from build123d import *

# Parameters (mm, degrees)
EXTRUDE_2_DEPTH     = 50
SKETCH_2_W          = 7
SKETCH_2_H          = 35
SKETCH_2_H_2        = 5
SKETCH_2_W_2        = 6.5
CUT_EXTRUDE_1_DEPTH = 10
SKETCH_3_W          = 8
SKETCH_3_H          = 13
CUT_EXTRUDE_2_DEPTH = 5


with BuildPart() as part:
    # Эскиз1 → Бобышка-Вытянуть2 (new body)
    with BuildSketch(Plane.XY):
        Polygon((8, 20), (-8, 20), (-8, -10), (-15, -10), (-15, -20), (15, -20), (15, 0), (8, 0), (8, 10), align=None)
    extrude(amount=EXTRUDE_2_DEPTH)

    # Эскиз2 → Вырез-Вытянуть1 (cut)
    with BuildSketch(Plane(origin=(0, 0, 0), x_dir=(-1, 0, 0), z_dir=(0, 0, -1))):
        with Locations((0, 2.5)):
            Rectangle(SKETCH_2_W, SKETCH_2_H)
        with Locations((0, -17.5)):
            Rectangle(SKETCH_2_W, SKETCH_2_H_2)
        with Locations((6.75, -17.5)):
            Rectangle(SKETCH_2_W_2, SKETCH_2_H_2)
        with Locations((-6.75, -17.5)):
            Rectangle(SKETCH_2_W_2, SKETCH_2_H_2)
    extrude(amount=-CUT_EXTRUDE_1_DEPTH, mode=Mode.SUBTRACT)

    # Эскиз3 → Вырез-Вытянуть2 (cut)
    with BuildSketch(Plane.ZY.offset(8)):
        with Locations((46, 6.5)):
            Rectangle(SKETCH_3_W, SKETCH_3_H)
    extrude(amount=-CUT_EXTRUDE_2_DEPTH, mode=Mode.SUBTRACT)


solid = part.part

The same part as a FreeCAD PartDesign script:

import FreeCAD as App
import Part
import Sketcher
from FreeCAD import Vector
Q = App.Units.Quantity


def add_polygon(sketch, points):
    """Adds a closed chain of lines whose ends are joined by coincident constraints."""
    first, n = sketch.GeometryCount, len(points)
    for a, b in zip(points, points[1:] + points[:1]):
        sketch.addGeometry(Part.LineSegment(App.Vector(*a, 0), App.Vector(*b, 0)), False)
    for i in range(n):
        sketch.addConstraint(Sketcher.Constraint("Coincident", first + i, 2, first + (i + 1) % n, 1))

doc = App.newDocument("Part")
body = doc.addObject("PartDesign::Body", "Body")

# Sketch on XY plane
sketch1 = doc.addObject("Sketcher::SketchObject", "Sketch")
body.addObject(sketch1)
sketch1.AttachmentSupport = (doc.XY_Plane, [""])
sketch1.MapMode = "FlatFace"
add_polygon(sketch1, [(8, 20), (-8, 20), (-8, -10), (-15, -10), (-15, -20), (15, -20), (15, 0), (8, 0)])  # lines 0-7
sketch1.addConstraint(Sketcher.Constraint("Horizontal", 0))
sketch1.addConstraint(Sketcher.Constraint("Vertical", 1))
sketch1.addConstraint(Sketcher.Constraint("Horizontal", 2))
sketch1.addConstraint(Sketcher.Constraint("Vertical", 3))
sketch1.addConstraint(Sketcher.Constraint("Horizontal", 4))
sketch1.addConstraint(Sketcher.Constraint("Vertical", 5))
sketch1.addConstraint(Sketcher.Constraint("Horizontal", 6))
sketch1.addConstraint(Sketcher.Constraint("Vertical", 7))
sketch1.addConstraint(Sketcher.Constraint("PointOnObject", 5, 2, -1))
sketch1.addConstraint(Sketcher.Constraint("Equal", 2, 6))
sketch1.addConstraint(Sketcher.Constraint("Equal", 4, 1))
sketch1.addConstraint(Sketcher.Constraint("Equal", 5, 7))
sketch1.addConstraint(Sketcher.Constraint("DistanceX", 0, 2, 0, 1, Q("16 mm")))
sketch1.addConstraint(Sketcher.Constraint("DistanceX", 2, 2, 2, 1, Q("7 mm")))
sketch1.addConstraint(Sketcher.Constraint("DistanceY", 3, 2, 3, 1, Q("10 mm")))
sketch1.addConstraint(Sketcher.Constraint("DistanceX", 0, 2, -1, 1, Q("8 mm")))
pad1 = doc.addObject("PartDesign::Pad", "Pad")
body.addObject(pad1)
pad1.Profile = sketch1
pad1.Length = 50

# Sketch on XY plane
sketch2 = doc.addObject("Sketcher::SketchObject", "Sketch001")
body.addObject(sketch2)
sketch2.AttachmentSupport = (doc.XY_Plane, [""])
sketch2.MapMode = "FlatFace"
add_polygon(sketch2, [(3.5, 20), (3.5, -15), (10, -15), (10, -20), (-10, -20), (-10, -15), (-3.5, -15), (-3.5, 20)])  # lines 0-7
sketch2.addConstraint(Sketcher.Constraint("Vertical", 0))
sketch2.addConstraint(Sketcher.Constraint("Horizontal", 1))
sketch2.addConstraint(Sketcher.Constraint("Vertical", 2))
sketch2.addConstraint(Sketcher.Constraint("Horizontal", 3))
sketch2.addConstraint(Sketcher.Constraint("Vertical", 4))
sketch2.addConstraint(Sketcher.Constraint("Horizontal", 5))
sketch2.addConstraint(Sketcher.Constraint("Vertical", 6))
sketch2.addConstraint(Sketcher.Constraint("Horizontal", 7))
sketch2.addConstraint(Sketcher.Constraint("Symmetric", 1, 2, 4, 2, -2))
sketch2.addConstraint(Sketcher.Constraint("Equal", 1, 5))
sketch2.addConstraint(Sketcher.Constraint("DistanceX", 3, 2, 3, 1, Q("20 mm")))
sketch2.addConstraint(Sketcher.Constraint("DistanceX", 7, 1, 7, 2, Q("7 mm")))
sketch2.addConstraint(Sketcher.Constraint("DistanceY", 0, 2, 0, 1, Q("35 mm")))
sketch2.addConstraint(Sketcher.Constraint("DistanceY", 2, 2, 2, 1, Q("5 mm")))
sketch2.addConstraint(Sketcher.Constraint("DistanceY", 0, 2, -1, 1, Q("15 mm")))
pocket1 = doc.addObject("PartDesign::Pocket", "Pocket")
body.addObject(pocket1)
pocket1.Profile = sketch2
pocket1.Length = 10
pocket1.Reversed = True

# Sketch on YZ plane
sketch3 = doc.addObject("Sketcher::SketchObject", "Sketch002")
body.addObject(sketch3)
sketch3.AttachmentSupport = (doc.YZ_Plane, [""])
sketch3.MapMode = "FlatFace"
sketch3.AttachmentOffset = App.Placement(Vector(0, 0, -8), App.Rotation())
add_polygon(sketch3, [(13, 42), (0, 42), (0, 50), (13, 50)])  # lines 0-3
sketch3.addConstraint(Sketcher.Constraint("Horizontal", 0))
sketch3.addConstraint(Sketcher.Constraint("Vertical", 1))
sketch3.addConstraint(Sketcher.Constraint("Horizontal", 2))
sketch3.addConstraint(Sketcher.Constraint("Vertical", 3))
sketch3.addConstraint(Sketcher.Constraint("PointOnObject", 0, 2, -2))
sketch3.addConstraint(Sketcher.Constraint("DistanceX", 0, 2, 0, 1, Q("13 mm")))
sketch3.addConstraint(Sketcher.Constraint("DistanceY", 1, 1, 1, 2, Q("8 mm")))
sketch3.addConstraint(Sketcher.Constraint("DistanceY", -1, 1, 0, 2, Q("42 mm")))
pocket2 = doc.addObject("PartDesign::Pocket", "Pocket001")
body.addObject(pocket2)
pocket2.Profile = sketch3
pocket2.Length = 5
pocket2.Reversed = True

doc.recompute()
